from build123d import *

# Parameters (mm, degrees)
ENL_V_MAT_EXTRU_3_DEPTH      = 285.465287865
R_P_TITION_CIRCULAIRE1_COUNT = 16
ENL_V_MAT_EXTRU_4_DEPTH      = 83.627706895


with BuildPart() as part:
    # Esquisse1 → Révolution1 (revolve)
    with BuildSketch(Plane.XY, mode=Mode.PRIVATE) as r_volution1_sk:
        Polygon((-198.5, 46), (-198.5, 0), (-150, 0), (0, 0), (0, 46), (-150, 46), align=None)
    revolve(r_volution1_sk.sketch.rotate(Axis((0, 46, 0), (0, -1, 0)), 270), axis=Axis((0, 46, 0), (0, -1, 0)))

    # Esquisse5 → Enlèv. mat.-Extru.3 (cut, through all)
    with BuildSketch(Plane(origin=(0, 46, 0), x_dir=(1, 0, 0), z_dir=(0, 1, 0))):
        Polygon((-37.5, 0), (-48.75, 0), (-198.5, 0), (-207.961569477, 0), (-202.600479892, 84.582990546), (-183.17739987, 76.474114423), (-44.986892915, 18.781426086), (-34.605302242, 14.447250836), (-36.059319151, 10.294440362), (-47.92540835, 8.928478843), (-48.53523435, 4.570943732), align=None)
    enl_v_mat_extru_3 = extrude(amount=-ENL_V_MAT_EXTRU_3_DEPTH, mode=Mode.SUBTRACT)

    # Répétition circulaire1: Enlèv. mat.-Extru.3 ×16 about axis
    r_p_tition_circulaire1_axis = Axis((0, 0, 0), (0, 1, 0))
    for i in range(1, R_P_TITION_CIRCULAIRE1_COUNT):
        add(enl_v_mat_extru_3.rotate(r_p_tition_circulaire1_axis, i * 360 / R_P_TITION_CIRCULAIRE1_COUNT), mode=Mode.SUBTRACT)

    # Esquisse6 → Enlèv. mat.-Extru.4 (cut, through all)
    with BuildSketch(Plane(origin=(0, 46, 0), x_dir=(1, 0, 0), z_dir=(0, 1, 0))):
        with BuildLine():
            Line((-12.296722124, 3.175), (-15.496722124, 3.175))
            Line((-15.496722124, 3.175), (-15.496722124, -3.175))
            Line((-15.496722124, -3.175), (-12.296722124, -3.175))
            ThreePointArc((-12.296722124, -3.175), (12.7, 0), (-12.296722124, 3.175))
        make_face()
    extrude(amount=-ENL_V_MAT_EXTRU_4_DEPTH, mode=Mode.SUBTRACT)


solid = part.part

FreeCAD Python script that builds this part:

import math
import FreeCAD as App
import Part
import Sketcher

V = App.Vector
Q = App.Units.Quantity

doc = App.newDocument("Part")
body = doc.addObject("PartDesign::Body", "Body")

# Sketch on XY plane
sketch1 = body.newObject("Sketcher::SketchObject", "Sketch")
sketch1.AttachmentSupport = (doc.getObject("XY_Plane"), [""])
sketch1.MapMode = "FlatFace"
sketch1.addGeometry([
    Part.LineSegment(V(-198.5, 46, 0), V(-198.5, 0, 0)),
    Part.LineSegment(V(-198.5, 0, 0), V(0, 0, 0)),
    Part.LineSegment(V(0, 0, 0), V(0, 46, 0)),
    Part.LineSegment(V(0, 46, 0), V(-198.5, 46, 0)),
], False)
sketch1.addConstraint([
    Sketcher.Constraint("Coincident", 0, 2, 1, 1),
    Sketcher.Constraint("Coincident", 1, 2, 2, 1),
    Sketcher.Constraint("Coincident", 2, 2, 3, 1),
    Sketcher.Constraint("Coincident", 3, 2, 0, 1),
    Sketcher.Constraint("Vertical", 0),
    Sketcher.Constraint("Horizontal", 1),
    Sketcher.Constraint("Vertical", 2),
    Sketcher.Constraint("Horizontal", 3),
    Sketcher.Constraint("Coincident", 1, 2, -1, 1),
    Sketcher.Constraint("DistanceY", 0, 2, 0, 1, 46.0),
    Sketcher.Constraint("DistanceX", 1, 1, 1, 2, 198.5),
])
revolution = body.newObject("PartDesign::Revolution", "Revolution")
revolution.Profile = sketch1
revolution.ReferenceAxis = (sketch1, ["V_Axis"])
revolution.Angle = 360

# Sketch on XZ plane
sketch2 = body.newObject("Sketcher::SketchObject", "Sketch001")
sketch2.AttachmentSupport = (doc.getObject("XZ_Plane"), [""])
sketch2.MapMode = "FlatFace"
sketch2.AttachmentOffset = App.Placement(V(0, 0, -46), App.Rotation())
sketch2.addGeometry([
    Part.LineSegment(V(-207.961569, 0, 0), V(-37.5, 0, 0)),  # 0
    Part.LineSegment(V(-37.5, 0, 0), V(-48.535234, -4.570944, 0)),  # 1
    Part.LineSegment(V(-48.535234, -4.570944, 0), V(-47.925408, -8.928479, 0)),  # 2
    Part.LineSegment(V(-47.925408, -8.928479, 0), V(-36.059319, -10.29444, 0)),  # 3
    Part.LineSegment(V(-36.059319, -10.29444, 0), V(-34.605302, -14.447251, 0)),  # 4
    Part.LineSegment(V(-34.605302, -14.447251, 0), V(-44.986893, -18.781426, 0)),  # 5
    Part.LineSegment(V(-44.986893, -18.781426, 0), V(-183.1774, -76.474114, 0)),  # 6
    Part.LineSegment(V(-183.1774, -76.474114, 0), V(-202.60048, -84.582991, 0)),  # 7
    Part.LineSegment(V(-202.60048, -84.582991, 0), V(-207.961569, 0, 0)),  # 8
], False)
sketch2.addConstraint([
    Sketcher.Constraint("Coincident", 0, 2, 1, 1),
    Sketcher.Constraint("Coincident", 1, 2, 2, 1),
    Sketcher.Constraint("Coincident", 2, 2, 3, 1),
    Sketcher.Constraint("Coincident", 3, 2, 4, 1),
    Sketcher.Constraint("Coincident", 4, 2, 5, 1),
    Sketcher.Constraint("Coincident", 5, 2, 6, 1),
    Sketcher.Constraint("Coincident", 6, 2, 7, 1),
    Sketcher.Constraint("Coincident", 7, 2, 8, 1),
    Sketcher.Constraint("Coincident", 8, 2, 0, 1),
    Sketcher.Constraint("Horizontal", 0),
    Sketcher.Constraint("PointOnObject", 0, 2, -1),
    Sketcher.Constraint("Parallel", 5, 6),
    Sketcher.Constraint("Parallel", 6, 7),
    Sketcher.Constraint("Equal", 1, 3),
    Sketcher.Constraint("Equal", 2, 4),
    Sketcher.Constraint("Angle", 1, Q("-157.5 deg")),
    Sketcher.Constraint("Distance", 2, 4.4),
    Sketcher.Constraint("DistanceX", 0, 2, -1, 1, 37.5),
    Sketcher.Constraint("Distance", 5, 11.25),
    Sketcher.Constraint("Distance", 6, 149.75),
    Sketcher.Constraint("Distance", 7, 21.047801),
    Sketcher.Constraint("DistanceX", 0, 1, 0, 2, 170.461569),
    Sketcher.Constraint("DistanceX", 6, 2, -1, 1, 183.1774),
    Sketcher.Constraint("Distance", 1, 11.944452),
    Sketcher.Constraint("Distance", 8, 84.75272),
    Sketcher.Constraint("DistanceX", 2, 2, -1, 1, 47.925408),
    Sketcher.Constraint("DistanceX", 3, 2, -1, 1, 36.059319),
])
pocket1 = body.newObject("PartDesign::Pocket", "Pocket")
pocket1.Profile = sketch2
pocket1.Type = "ThroughAll"
pocket1.Reversed = True
doc.recompute()

polarpattern = body.newObject("PartDesign::PolarPattern", "PolarPattern")
polarpattern.Originals = [pocket1]
polarpattern.Axis = (doc.getObject("Y_Axis"), [""])
polarpattern.Angle = 360
polarpattern.Occurrences = 16
body.Tip = polarpattern

# Sketch on XZ plane
sketch3 = body.newObject("Sketcher::SketchObject", "Sketch002")
sketch3.AttachmentSupport = (doc.getObject("XZ_Plane"), [""])
sketch3.MapMode = "FlatFace"
sketch3.AttachmentOffset = App.Placement(V(0, 0, -46), App.Rotation())
sketch3.addGeometry([
    Part.LineSegment(V(-12.296722, -3.175, 0), V(-15.496722, -3.175, 0)),
    Part.LineSegment(V(-15.496722, -3.175, 0), V(-15.496722, 3.175, 0)),
    Part.LineSegment(V(-15.496722, 3.175, 0), V(-12.296722, 3.175, 0)),
    Part.ArcOfCircle(Part.Circle(V(0, 0, 0), V(0, 0, 1), 12.7), math.radians(-165.522488), math.radians(165.522488)),
], False)
sketch3.addConstraint([
    Sketcher.Constraint("Coincident", 0, 2, 1, 1),
    Sketcher.Constraint("Coincident", 1, 2, 2, 1),
    Sketcher.Constraint("Coincident", 2, 2, 3, 2),
    Sketcher.Constraint("Coincident", 3, 1, 0, 1),
    Sketcher.Constraint("Horizontal", 0),
    Sketcher.Constraint("Vertical", 1),
    Sketcher.Constraint("Horizontal", 2),
    Sketcher.Constraint("Coincident", 3, 3, -1, 1),
    Sketcher.Constraint("Vertical", 2, 2, 3, 1),
    Sketcher.Constraint("Radius", 3, 12.7),
    Sketcher.Constraint("DistanceX", 0, 2, 0, 1, 3.2),
    Sketcher.Constraint("DistanceY", 1, 1, 1, 2, 6.35),
])
pocket2 = body.newObject("PartDesign::Pocket", "Pocket001")
pocket2.Profile = sketch3
pocket2.Type = "ThroughAll"
pocket2.Reversed = True

doc.recompute()
